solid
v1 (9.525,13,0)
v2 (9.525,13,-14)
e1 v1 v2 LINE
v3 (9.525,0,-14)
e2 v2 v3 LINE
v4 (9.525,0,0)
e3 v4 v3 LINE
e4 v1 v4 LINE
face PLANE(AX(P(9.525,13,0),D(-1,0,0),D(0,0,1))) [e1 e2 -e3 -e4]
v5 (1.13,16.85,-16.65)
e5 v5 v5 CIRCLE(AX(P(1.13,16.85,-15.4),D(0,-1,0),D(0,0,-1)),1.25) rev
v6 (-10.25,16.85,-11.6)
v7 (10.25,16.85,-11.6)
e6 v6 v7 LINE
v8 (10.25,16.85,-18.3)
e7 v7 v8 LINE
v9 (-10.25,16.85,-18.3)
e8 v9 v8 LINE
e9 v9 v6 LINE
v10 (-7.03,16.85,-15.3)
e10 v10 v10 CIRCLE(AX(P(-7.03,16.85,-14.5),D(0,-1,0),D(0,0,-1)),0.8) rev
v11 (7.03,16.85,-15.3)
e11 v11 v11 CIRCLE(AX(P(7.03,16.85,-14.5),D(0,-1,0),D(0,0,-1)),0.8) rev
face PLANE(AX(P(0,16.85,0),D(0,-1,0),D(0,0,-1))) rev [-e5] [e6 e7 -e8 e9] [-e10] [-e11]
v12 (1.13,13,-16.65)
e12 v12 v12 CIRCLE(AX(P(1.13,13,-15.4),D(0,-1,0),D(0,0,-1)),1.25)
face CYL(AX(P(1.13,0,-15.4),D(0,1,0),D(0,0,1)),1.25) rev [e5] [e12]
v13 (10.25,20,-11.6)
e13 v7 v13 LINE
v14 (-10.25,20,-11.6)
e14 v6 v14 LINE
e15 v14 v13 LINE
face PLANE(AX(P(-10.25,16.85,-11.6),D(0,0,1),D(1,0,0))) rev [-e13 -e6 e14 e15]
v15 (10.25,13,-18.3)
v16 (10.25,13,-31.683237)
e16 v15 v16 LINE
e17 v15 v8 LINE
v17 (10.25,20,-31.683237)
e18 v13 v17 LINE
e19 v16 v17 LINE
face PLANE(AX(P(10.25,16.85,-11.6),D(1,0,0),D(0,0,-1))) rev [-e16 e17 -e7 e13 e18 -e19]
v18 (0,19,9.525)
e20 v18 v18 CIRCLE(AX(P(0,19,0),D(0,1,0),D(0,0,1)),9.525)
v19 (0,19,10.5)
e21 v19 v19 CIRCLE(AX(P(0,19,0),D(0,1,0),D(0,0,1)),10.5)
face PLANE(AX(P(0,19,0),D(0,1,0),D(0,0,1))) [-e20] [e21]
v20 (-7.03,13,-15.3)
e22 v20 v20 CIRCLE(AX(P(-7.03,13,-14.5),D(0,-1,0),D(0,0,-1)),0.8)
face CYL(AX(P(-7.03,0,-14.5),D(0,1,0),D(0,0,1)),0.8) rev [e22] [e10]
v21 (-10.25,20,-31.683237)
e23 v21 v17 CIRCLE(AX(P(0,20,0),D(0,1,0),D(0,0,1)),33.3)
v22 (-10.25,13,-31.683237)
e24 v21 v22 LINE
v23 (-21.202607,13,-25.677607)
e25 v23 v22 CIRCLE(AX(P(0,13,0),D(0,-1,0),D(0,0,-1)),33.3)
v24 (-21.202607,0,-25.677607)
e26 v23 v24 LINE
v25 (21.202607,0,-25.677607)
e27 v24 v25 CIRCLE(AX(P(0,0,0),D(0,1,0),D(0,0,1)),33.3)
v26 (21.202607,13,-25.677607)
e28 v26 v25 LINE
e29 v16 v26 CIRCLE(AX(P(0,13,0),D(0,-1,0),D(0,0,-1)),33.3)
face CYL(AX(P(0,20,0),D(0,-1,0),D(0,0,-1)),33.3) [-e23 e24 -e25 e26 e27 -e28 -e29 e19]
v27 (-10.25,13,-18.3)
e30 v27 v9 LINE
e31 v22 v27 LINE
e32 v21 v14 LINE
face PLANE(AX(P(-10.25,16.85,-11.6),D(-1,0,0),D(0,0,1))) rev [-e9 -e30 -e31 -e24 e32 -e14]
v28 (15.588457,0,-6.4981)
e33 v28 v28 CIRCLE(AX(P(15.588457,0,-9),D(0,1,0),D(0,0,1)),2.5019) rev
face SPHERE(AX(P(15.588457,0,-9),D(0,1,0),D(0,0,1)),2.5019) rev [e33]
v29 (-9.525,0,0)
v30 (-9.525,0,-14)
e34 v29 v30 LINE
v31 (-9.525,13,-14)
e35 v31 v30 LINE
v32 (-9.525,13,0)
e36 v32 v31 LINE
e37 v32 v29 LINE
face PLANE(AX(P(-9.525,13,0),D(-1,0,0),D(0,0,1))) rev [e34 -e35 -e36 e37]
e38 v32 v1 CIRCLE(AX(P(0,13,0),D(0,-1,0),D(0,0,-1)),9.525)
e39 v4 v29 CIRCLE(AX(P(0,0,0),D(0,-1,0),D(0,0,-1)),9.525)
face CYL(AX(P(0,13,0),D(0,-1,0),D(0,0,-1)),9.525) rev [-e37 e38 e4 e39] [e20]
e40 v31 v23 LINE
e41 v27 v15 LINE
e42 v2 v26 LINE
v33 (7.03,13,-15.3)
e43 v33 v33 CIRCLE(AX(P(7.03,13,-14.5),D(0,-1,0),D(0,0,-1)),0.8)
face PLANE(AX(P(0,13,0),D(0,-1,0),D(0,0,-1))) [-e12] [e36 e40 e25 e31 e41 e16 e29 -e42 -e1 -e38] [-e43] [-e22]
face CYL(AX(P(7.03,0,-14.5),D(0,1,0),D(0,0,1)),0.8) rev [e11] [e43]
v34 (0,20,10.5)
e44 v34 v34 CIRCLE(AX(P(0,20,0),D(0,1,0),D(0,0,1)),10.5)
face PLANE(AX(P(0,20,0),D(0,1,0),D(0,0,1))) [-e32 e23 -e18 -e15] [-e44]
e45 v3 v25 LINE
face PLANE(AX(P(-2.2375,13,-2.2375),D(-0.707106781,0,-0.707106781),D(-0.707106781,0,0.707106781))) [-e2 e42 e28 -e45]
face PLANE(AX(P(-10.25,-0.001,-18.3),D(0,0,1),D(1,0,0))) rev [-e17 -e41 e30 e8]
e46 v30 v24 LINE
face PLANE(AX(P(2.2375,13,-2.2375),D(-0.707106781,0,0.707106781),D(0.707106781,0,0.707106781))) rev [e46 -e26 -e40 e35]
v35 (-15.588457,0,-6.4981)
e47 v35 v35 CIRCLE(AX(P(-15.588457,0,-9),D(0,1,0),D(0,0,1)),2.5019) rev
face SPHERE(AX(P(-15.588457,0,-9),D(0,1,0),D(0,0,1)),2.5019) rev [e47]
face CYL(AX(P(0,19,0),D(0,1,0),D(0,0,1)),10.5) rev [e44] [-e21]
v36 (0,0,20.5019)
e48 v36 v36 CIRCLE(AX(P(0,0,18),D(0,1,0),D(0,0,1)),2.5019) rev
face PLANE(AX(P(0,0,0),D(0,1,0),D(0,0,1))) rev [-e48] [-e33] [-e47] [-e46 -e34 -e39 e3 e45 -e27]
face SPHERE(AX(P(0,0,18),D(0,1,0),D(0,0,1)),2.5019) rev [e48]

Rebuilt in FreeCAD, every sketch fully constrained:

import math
import FreeCAD as App
import Part
import Sketcher

V = App.Vector
Q = App.Units.Quantity


def add_polygon(sketch, points):
    """Adds a closed chain of lines whose ends are joined by coincident constraints."""
    first, n = sketch.GeometryCount, len(points)
    for a, b in zip(points, points[1:] + points[:1]):
        sketch.addGeometry(Part.LineSegment(App.Vector(*a, 0), App.Vector(*b, 0)), False)
    for i in range(n):
        sketch.addConstraint(Sketcher.Constraint("Coincident", first + i, 2, first + (i + 1) % n, 1))

doc = App.newDocument("Part")
body = doc.addObject("PartDesign::Body", "Body")

sketch1 = body.newObject("Sketcher::SketchObject", "Sketch")
sketch1.AttachmentSupport = (doc.getObject("XZ_Plane"), [""])
sketch1.MapMode = "FlatFace"
sketch1.addGeometry(Part.Circle(V(0, 0, 0), V(0, 0, 1), 33), False)
sketch1.addConstraint([
    Sketcher.Constraint("Coincident", 0, 3, -1, 1),
    Sketcher.Constraint("Diameter", 0, Q("66.6 mm")),
])
pad1 = body.newObject("PartDesign::Pad", "Pad")
pad1.Profile = sketch1
pad1.Length = 20
pad1.Reversed = True

sketch2 = body.newObject("Sketcher::SketchObject", "Sketch001")
sketch2.AttachmentSupport = (doc.getObject("XZ_Plane"), [""])
sketch2.MapMode = "FlatFace"
sketch2.addGeometry([
    Part.LineSegment(V(2.5, 18, 0), V(-2.5, 18, 0)),
    Part.ArcOfCircle(Part.Circle(V(0, 18, 0), V(0, 0, 1), 2.5), math.radians(180), math.radians(360)),
], False)
sketch2.addGeometry(Part.LineSegment(V(2.5, 18, 0), V(-2.5, 18, 0)), True)
sketch2.addConstraint([
    Sketcher.Constraint("Coincident", 0, 1, 1, 2),
    Sketcher.Constraint("Coincident", 1, 1, 0, 2),
    Sketcher.Constraint("Horizontal", 0),
    Sketcher.Constraint("Horizontal", 2),
    Sketcher.Constraint("Coincident", 2, 1, 0, 1),
    Sketcher.Constraint("PointOnObject", 1, 3, -2),
    Sketcher.Constraint("Horizontal", 1, 3, 0, 1),
    Sketcher.Constraint("Equal", 0, 2),
    Sketcher.Constraint("DistanceY", -1, 1, 1, 3, Q("18 mm")),
    Sketcher.Constraint("Radius", 1, Q("2.5019 mm")),
])
groove = body.newObject("PartDesign::Groove", "Groove")
groove.Profile = sketch2
groove.ReferenceAxis = (sketch2, ["Axis0"])
groove.Angle = 360
doc.recompute()

polarpattern = body.newObject("PartDesign::PolarPattern", "PolarPattern")
polarpattern.Originals = [groove]
polarpattern.Axis = (doc.getObject("Y_Axis"), [""])
polarpattern.Angle = 360
polarpattern.Occurrences = 3
body.Tip = polarpattern

sketch3 = body.newObject("Sketcher::SketchObject", "Sketch002")
sketch3.AttachmentSupport = (doc.getObject("XZ_Plane"), [""])
sketch3.MapMode = "FlatFace"
sketch3.addGeometry([
    Part.LineSegment(V(10, -14, 0), V(10, 0, 0)),
    Part.ArcOfCircle(Part.Circle(V(0, 0, 0), V(0, 0, 1), 10), math.radians(0), math.radians(180)),
    Part.LineSegment(V(-10, 0, 0), V(-10, -14, 0)),
    Part.LineSegment(V(-10, -14, 0), V(-21, -26, 0)),
    Part.ArcOfCircle(Part.Circle(V(0, 0, 0), V(0, 0, 1), 33), math.radians(-130), math.radians(-50)),
    Part.LineSegment(V(21, -26, 0), V(10, -14, 0)),
], False)
sketch3.addConstraint([
    Sketcher.Constraint("Tangent", 0, 2, 1, 1),
    Sketcher.Constraint("Tangent", 1, 2, 2, 1),
    Sketcher.Constraint("Coincident", 2, 2, 3, 1),
    Sketcher.Constraint("Coincident", 3, 2, 4, 1),
    Sketcher.Constraint("Coincident", 4, 2, 5, 1),
    Sketcher.Constraint("Coincident", 5, 2, 0, 1),
    Sketcher.Constraint("Vertical", 0),
    Sketcher.Constraint("Vertical", 2),
    Sketcher.Constraint("Coincident", 1, 3, -1, 1),
    Sketcher.Constraint("Coincident", 4, 3, -1, 1),
    Sketcher.Constraint("Perpendicular", 3, 5),
    Sketcher.Constraint("Horizontal", 3, 2, 4, 2),
    Sketcher.Constraint("Horizontal", 2, 2, 5, 2),
    Sketcher.Constraint("Radius", 4, Q("33.3 mm")),
    Sketcher.Constraint("DistanceY", 0, 1, 0, 2, Q("14 mm")),
    Sketcher.Constraint("Radius", 1, Q("9.525 mm")),
])
pocket1 = body.newObject("PartDesign::Pocket", "Pocket")
pocket1.Profile = sketch3
pocket1.Length = 13

sketch4 = body.newObject("Sketcher::SketchObject", "Sketch003")
sketch4.AttachmentSupport = (doc.getObject("XZ_Plane"), [""])
sketch4.MapMode = "FlatFace"
sketch4.AttachmentOffset = App.Placement(V(0, 0, -20), App.Rotation())
sketch4.addGeometry(Part.Circle(V(0, 0, 0), V(0, 0, 1), 10), False)
sketch4.addConstraint([
    Sketcher.Constraint("Coincident", 0, 3, -1, 1),
    Sketcher.Constraint("Diameter", 0, Q("19.05 mm")),
])
pocket2 = body.newObject("PartDesign::Pocket", "Pocket001")
pocket2.Profile = sketch4
pocket2.Type = "UpToFirst"
pocket2.Reversed = True

sketch5 = body.newObject("Sketcher::SketchObject", "Sketch004")
sketch5.AttachmentSupport = (doc.getObject("XZ_Plane"), [""])
sketch5.MapMode = "FlatFace"
sketch5.AttachmentOffset = App.Placement(V(0, 0, -19), App.Rotation())
sketch5.addGeometry([
    Part.Circle(V(0, 0, 0), V(0, 0, 1), 10),
    Part.Circle(V(0, 0, 0), V(0, 0, 1), 10),
], False)
sketch5.addConstraint([
    Sketcher.Constraint("Coincident", 0, 3, -1, 1),
    Sketcher.Constraint("Coincident", 1, 3, -1, 1),
    Sketcher.Constraint("Diameter", 0, Q("21 mm")),
    Sketcher.Constraint("Diameter", 1, Q("19.05 mm")),
])
pocket3 = body.newObject("PartDesign::Pocket", "Pocket002")
pocket3.Profile = sketch5
pocket3.Length = 1

sketch6 = body.newObject("Sketcher::SketchObject", "Sketch005")
sketch6.AttachmentSupport = (doc.getObject("XZ_Plane"), [""])
sketch6.MapMode = "FlatFace"
sketch6.AttachmentOffset = App.Placement(V(0, 0, -20), App.Rotation())
sketch6.addGeometry([
    Part.Circle(V(-7, -14.5, 0), V(0, 0, 1), 0.8),
    Part.Circle(V(7, -14.5, 0), V(0, 0, 1), 0.8),
    Part.Circle(V(1.1, -15.4, 0), V(0, 0, 1), 1.2),
], False)
sketch6.addConstraint([
    Sketcher.Constraint("Equal", 0, 1),
    Sketcher.Constraint("Symmetric", 0, 3, 1, 3, -2),
    Sketcher.Constraint("Diameter", 0, Q("1.6 mm")),
    Sketcher.Constraint("Diameter", 2, Q("2.5 mm")),
    Sketcher.Constraint("DistanceY", 0, 3, -1, 1, Q("14.5 mm")),
    Sketcher.Constraint("DistanceY", 2, 3, -1, 1, Q("15.4 mm")),
    Sketcher.Constraint("DistanceX", 2, 3, 1, 3, Q("5.9 mm")),
    Sketcher.Constraint("DistanceX", 0, 3, -1, 1, Q("7.03 mm")),
])
pocket4 = body.newObject("PartDesign::Pocket", "Pocket003")
pocket4.Profile = sketch6
pocket4.Type = "ThroughAll"
pocket4.Reversed = True

sketch7 = body.newObject("Sketcher::SketchObject", "Sketch006")
sketch7.AttachmentSupport = (doc.getObject("XZ_Plane"), [""])
sketch7.MapMode = "FlatFace"
sketch7.AttachmentOffset = App.Placement(V(0, 0, -20), App.Rotation())
add_polygon(sketch7, [(-10, -37), (-10, -12), (10, -12), (10, -37)])
sketch7.addConstraint([
    Sketcher.Constraint("Vertical", 0),
    Sketcher.Constraint("Horizontal", 1),
    Sketcher.Constraint("Vertical", 2),
    Sketcher.Constraint("Horizontal", 3),
    Sketcher.Constraint("DistanceY", 0, 1, 0, 2, Q("25 mm")),
    Sketcher.Constraint("DistanceX", 1, 1, 1, 2, Q("20.5 mm")),
    Sketcher.Constraint("DistanceY", 0, 2, -1, 1, Q("11.6 mm")),
    Sketcher.Constraint("DistanceX", 0, 2, -1, 1, Q("10.25 mm")),
])
pocket5 = body.newObject("PartDesign::Pocket", "Pocket004")
pocket5.Profile = sketch7
pocket5.Length = 3.15
pocket5.Reversed = True

sketch8 = body.newObject("Sketcher::SketchObject", "Sketch007")
sketch8.AttachmentSupport = (doc.getObject("XZ_Plane"), [""])
sketch8.MapMode = "FlatFace"
sketch8.AttachmentOffset = App.Placement(V(0, 0, -16.85), App.Rotation())
add_polygon(sketch8, [(-10, -38), (-10, -18), (10, -18), (10, -38)])
sketch8.addConstraint([
    Sketcher.Constraint("Vertical", 0),
    Sketcher.Constraint("Horizontal", 1),
    Sketcher.Constraint("Vertical", 2),
    Sketcher.Constraint("Horizontal", 3),
    Sketcher.Constraint("DistanceY", 0, 1, 0, 2, Q("20 mm")),
    Sketcher.Constraint("DistanceX", 1, 1, 1, 2, Q("20.5 mm")),
    Sketcher.Constraint("DistanceY", 0, 2, -1, 1, Q("18.3 mm")),
    Sketcher.Constraint("DistanceX", 0, 2, -1, 1, Q("10.25 mm")),
])
pocket6 = body.newObject("PartDesign::Pocket", "Pocket005")
pocket6.Profile = sketch8
pocket6.Type = "UpToFirst"
pocket6.Reversed = True

doc.recompute()
